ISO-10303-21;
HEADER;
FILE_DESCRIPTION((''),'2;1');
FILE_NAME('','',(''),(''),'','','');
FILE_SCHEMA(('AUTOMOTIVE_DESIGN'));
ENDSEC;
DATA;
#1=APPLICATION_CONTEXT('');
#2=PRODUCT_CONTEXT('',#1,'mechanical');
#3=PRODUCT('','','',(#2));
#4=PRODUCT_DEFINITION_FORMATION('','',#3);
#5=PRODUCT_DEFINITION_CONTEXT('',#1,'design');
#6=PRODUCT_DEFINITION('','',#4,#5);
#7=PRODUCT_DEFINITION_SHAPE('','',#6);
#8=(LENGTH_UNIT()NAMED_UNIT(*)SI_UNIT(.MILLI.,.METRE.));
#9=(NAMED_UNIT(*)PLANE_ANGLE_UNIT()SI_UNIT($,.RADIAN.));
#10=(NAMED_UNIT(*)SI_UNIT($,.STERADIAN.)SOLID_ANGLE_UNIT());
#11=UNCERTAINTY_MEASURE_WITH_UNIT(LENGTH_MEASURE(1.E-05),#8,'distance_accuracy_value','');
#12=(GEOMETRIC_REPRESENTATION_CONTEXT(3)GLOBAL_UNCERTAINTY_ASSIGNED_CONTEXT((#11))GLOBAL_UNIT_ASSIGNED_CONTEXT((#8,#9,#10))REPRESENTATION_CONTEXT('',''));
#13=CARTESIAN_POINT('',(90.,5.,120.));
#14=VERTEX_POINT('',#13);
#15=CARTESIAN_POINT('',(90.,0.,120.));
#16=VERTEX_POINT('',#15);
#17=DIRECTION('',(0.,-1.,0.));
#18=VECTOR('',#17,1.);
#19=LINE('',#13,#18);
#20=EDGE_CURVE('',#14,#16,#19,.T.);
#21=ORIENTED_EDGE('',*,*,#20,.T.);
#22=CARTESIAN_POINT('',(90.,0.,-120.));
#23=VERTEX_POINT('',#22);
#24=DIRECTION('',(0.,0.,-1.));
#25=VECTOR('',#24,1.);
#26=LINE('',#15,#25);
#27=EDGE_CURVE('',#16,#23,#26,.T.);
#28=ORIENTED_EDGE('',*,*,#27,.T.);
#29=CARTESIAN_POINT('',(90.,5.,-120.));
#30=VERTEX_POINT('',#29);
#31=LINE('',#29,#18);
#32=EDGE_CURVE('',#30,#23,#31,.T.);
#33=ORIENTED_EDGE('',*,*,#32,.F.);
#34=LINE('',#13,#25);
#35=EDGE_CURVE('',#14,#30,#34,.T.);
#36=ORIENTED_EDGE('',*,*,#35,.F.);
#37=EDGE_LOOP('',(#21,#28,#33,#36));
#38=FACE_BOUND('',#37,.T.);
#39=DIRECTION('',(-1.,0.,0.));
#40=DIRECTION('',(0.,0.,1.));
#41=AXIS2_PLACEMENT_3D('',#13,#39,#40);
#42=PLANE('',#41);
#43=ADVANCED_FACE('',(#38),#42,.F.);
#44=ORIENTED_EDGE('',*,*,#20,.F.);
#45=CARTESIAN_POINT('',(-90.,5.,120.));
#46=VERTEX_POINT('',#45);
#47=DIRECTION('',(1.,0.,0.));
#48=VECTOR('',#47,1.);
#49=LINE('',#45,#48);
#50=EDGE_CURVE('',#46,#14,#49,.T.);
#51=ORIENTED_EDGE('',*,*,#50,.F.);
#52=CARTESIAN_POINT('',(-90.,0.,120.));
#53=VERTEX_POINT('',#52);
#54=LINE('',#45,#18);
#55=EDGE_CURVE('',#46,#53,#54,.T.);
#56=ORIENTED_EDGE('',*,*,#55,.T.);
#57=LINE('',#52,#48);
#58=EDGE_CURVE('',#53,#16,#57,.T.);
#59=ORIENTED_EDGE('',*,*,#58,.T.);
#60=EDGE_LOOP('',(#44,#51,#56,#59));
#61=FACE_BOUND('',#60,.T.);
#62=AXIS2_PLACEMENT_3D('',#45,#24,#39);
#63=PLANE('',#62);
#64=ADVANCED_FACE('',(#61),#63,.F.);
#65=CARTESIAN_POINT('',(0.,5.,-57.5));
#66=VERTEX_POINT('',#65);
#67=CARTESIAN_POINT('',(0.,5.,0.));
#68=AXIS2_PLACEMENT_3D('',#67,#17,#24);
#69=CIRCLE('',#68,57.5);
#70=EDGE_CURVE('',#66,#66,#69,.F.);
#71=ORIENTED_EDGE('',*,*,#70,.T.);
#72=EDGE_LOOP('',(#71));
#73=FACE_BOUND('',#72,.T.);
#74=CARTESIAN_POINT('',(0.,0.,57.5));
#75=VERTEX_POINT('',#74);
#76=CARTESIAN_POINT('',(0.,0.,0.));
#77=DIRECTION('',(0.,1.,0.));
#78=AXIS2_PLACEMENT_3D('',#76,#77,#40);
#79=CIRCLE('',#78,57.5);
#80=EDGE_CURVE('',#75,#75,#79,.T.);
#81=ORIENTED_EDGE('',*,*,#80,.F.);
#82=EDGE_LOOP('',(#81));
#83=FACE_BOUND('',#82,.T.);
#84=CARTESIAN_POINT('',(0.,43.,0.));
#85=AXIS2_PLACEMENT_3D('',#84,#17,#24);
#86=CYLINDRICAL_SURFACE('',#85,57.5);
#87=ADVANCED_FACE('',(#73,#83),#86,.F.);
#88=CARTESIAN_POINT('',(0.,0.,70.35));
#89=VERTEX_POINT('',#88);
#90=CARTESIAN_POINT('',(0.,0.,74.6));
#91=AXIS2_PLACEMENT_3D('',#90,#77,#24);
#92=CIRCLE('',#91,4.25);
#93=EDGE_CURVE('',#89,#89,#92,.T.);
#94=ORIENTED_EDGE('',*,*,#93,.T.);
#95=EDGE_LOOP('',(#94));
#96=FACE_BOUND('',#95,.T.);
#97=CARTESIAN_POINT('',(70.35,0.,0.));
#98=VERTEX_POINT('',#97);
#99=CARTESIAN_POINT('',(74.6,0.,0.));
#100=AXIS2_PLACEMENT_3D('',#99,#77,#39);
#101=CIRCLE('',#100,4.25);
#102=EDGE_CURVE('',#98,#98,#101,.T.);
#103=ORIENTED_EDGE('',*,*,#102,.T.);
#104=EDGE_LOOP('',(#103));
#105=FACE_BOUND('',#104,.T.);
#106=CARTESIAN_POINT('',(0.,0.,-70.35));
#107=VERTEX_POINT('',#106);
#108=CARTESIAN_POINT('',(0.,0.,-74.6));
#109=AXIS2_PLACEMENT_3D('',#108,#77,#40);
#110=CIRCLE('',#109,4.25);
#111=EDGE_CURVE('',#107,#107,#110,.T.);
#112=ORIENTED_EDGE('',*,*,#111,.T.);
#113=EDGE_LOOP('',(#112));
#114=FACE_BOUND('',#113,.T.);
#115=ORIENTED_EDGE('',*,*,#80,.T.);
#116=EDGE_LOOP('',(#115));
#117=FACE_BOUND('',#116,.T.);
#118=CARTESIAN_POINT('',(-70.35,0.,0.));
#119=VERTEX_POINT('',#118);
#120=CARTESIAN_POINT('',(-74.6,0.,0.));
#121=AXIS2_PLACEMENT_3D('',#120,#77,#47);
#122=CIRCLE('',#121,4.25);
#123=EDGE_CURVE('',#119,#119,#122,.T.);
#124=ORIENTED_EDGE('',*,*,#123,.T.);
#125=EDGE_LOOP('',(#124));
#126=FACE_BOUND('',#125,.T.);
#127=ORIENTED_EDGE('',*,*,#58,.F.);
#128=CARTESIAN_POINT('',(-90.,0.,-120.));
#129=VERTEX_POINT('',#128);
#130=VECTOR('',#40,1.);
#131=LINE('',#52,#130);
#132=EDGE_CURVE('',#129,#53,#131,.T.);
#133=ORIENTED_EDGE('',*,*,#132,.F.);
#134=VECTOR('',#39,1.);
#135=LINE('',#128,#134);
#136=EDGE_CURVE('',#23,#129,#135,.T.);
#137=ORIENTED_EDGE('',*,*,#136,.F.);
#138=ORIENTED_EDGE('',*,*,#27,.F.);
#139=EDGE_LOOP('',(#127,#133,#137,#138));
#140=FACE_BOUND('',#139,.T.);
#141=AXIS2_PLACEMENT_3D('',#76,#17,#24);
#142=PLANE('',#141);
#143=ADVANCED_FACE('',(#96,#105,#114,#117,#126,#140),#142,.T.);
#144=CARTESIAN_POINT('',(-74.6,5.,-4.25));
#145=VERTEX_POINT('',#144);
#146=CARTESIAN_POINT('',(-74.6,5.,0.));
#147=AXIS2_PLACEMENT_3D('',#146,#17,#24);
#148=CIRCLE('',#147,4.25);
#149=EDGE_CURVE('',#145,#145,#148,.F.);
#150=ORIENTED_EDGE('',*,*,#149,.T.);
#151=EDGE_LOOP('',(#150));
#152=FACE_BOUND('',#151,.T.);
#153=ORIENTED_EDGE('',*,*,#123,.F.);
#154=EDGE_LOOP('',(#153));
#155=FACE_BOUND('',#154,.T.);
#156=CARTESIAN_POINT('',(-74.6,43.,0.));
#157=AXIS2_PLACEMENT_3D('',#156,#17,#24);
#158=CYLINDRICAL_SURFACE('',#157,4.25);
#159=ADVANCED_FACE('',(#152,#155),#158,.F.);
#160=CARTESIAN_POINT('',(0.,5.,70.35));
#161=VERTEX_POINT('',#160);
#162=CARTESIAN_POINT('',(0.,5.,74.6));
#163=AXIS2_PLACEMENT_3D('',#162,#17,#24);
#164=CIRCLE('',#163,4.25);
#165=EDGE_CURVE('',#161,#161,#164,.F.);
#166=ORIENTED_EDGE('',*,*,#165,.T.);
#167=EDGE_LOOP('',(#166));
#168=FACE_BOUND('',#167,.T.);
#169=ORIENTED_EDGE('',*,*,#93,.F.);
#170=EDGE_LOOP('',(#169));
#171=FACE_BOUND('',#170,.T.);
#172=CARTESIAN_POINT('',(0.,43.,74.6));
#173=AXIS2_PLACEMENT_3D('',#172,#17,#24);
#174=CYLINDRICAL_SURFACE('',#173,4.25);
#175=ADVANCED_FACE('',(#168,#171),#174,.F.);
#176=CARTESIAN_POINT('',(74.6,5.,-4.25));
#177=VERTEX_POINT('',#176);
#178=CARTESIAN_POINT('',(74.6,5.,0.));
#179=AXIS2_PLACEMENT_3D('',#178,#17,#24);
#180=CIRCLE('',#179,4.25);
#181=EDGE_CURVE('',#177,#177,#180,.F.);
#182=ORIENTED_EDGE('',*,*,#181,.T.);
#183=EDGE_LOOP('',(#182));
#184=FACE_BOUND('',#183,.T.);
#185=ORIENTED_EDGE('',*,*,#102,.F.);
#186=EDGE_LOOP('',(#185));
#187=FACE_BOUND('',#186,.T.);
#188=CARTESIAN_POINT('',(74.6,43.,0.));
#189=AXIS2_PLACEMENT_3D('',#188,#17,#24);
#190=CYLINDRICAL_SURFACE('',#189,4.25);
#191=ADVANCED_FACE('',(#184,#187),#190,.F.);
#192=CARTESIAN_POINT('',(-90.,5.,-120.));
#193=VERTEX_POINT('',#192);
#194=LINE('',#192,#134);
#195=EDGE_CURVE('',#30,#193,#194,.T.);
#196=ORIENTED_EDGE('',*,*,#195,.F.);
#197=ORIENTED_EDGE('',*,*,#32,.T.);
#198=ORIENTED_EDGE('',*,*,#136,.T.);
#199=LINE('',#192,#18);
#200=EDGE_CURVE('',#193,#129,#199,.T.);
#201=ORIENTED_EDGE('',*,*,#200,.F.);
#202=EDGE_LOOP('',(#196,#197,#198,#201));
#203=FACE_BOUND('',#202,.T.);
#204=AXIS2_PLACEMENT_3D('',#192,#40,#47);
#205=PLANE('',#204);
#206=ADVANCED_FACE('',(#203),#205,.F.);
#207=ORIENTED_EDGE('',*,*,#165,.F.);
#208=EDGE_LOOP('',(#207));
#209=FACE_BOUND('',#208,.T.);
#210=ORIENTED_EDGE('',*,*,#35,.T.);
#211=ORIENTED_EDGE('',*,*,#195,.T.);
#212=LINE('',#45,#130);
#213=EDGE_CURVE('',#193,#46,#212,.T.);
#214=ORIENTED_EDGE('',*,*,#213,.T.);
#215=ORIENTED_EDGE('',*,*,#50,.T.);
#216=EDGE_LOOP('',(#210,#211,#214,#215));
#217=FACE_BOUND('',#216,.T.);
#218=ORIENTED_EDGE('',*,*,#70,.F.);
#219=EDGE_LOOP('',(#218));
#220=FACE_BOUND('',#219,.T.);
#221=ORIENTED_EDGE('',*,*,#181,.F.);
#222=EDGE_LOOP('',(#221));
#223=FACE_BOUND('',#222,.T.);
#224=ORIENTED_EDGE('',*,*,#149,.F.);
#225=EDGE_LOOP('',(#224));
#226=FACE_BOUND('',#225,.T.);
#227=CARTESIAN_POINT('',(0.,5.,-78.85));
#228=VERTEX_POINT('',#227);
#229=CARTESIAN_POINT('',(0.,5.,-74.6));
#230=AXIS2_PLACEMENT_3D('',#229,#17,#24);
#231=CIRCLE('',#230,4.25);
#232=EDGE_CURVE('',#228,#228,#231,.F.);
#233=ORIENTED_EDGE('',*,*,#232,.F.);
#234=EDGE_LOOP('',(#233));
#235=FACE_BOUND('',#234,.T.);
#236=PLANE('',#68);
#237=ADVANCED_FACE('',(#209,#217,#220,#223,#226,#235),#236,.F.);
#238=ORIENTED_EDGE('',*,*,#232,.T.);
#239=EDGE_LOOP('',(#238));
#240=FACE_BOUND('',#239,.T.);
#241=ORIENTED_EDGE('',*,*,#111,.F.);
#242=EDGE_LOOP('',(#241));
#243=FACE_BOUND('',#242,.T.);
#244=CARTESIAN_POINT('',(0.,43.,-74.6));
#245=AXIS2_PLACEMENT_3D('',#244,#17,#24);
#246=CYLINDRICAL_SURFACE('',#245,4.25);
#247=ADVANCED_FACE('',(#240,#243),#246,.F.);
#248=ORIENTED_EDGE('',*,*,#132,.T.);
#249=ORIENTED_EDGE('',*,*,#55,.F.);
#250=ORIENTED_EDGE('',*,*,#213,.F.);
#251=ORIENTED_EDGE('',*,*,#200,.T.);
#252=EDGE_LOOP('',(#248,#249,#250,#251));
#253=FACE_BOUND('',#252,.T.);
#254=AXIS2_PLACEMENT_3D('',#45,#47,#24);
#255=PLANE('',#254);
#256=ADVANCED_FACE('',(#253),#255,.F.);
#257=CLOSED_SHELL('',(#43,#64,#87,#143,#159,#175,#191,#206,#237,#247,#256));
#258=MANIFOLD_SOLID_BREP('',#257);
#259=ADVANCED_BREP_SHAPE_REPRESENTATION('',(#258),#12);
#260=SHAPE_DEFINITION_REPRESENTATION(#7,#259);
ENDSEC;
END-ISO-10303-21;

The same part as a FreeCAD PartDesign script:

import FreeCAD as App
import Part
import Sketcher
from FreeCAD import Vector


def add_polygon(sketch, points):
    """Adds a closed chain of lines whose ends are joined by coincident constraints."""
    first, n = sketch.GeometryCount, len(points)
    for a, b in zip(points, points[1:] + points[:1]):
        sketch.addGeometry(Part.LineSegment(App.Vector(*a, 0), App.Vector(*b, 0)), False)
    for i in range(n):
        sketch.addConstraint(Sketcher.Constraint("Coincident", first + i, 2, first + (i + 1) % n, 1))

doc = App.newDocument("Part")
params = doc.addObject("Spreadsheet::Sheet", "Params")
for row, (alias, value) in enumerate([
    ("sketch1_width", "180 mm"),
    ("sketch1_height", "240 mm"),
    ("pad1_length", "5 mm"),
    ("sketch2_diameter", "115 mm"),
    ("sketch2_diameter2", "8.5 mm"),
    ("pocket1_length", "43 mm"),
], start=1):
    params.set(f"A{row}", alias)
    params.set(f"B{row}", "=" + value)
    params.setAlias(f"B{row}", alias)

body = doc.addObject("PartDesign::Body", "Body")

# Sketch on XZ plane
sketch1 = body.newObject("Sketcher::SketchObject", "Sketch")
sketch1.AttachmentSupport = (doc.getObject("XZ_Plane"), [""])
sketch1.MapMode = "FlatFace"
add_polygon(sketch1, [(-90, -120), (-90, 120), (90, 120), (90, -120)])  # lines 0-3
sketch1.addConstraint(Sketcher.Constraint("Vertical", 0))
sketch1.addConstraint(Sketcher.Constraint("Horizontal", 1))
sketch1.addConstraint(Sketcher.Constraint("Vertical", 2))
sketch1.addConstraint(Sketcher.Constraint("Horizontal", 3))
sketch1.addConstraint(Sketcher.Constraint("Symmetric", 0, 2, 2, 2, -1, 1))
sketch1.addConstraint(Sketcher.Constraint("DistanceX", 1, 1, 1, 2, 180.0))
sketch1.addConstraint(Sketcher.Constraint("DistanceY", 0, 1, 0, 2, 240.0))
sketch1.setExpression("Constraints[9]", "Params.sketch1_width")
sketch1.setExpression("Constraints[10]", "Params.sketch1_height")
pad1 = body.newObject("PartDesign::Pad", "Pad")
pad1.Profile = sketch1
pad1.setExpression("Length", "Params.pad1_length")
pad1.Reversed = True

# Sketch on XZ plane
sketch2 = body.newObject("Sketcher::SketchObject", "Sketch001")
sketch2.AttachmentSupport = (doc.getObject("XZ_Plane"), [""])
sketch2.MapMode = "FlatFace"
sketch2.addGeometry(Part.Circle(Vector(0, 0, 0), Vector(0, 0, 1), 57.5), False)
sketch2.addGeometry(Part.Circle(Vector(0, -74.6, 0), Vector(0, 0, 1), 4.25), False)
sketch2.addConstraint(Sketcher.Constraint("Coincident", 0, 3, -1, 1))
sketch2.addConstraint(Sketcher.Constraint("PointOnObject", 1, 3, -2))
sketch2.addConstraint(Sketcher.Constraint("Diameter", 0, 115.0))
sketch2.addConstraint(Sketcher.Constraint("Diameter", 1, 8.5))
sketch2.addConstraint(Sketcher.Constraint("DistanceY", 1, 3, -1, 1, 74.6))
sketch2.setExpression("Constraints[2]", "Params.sketch2_diameter")
sketch2.setExpression("Constraints[3]", "Params.sketch2_diameter2")
pocket1 = body.newObject("PartDesign::Pocket", "Pocket")
pocket1.Profile = sketch2
pocket1.setExpression("Length", "Params.pocket1_length")
doc.recompute()

polarpattern = body.newObject("PartDesign::PolarPattern", "PolarPattern")
polarpattern.Originals = [pocket1]
polarpattern.Axis = (doc.getObject("Y_Axis"), [""])
polarpattern.Angle = 360
polarpattern.Occurrences = 4
body.Tip = polarpattern

doc.recompute()
